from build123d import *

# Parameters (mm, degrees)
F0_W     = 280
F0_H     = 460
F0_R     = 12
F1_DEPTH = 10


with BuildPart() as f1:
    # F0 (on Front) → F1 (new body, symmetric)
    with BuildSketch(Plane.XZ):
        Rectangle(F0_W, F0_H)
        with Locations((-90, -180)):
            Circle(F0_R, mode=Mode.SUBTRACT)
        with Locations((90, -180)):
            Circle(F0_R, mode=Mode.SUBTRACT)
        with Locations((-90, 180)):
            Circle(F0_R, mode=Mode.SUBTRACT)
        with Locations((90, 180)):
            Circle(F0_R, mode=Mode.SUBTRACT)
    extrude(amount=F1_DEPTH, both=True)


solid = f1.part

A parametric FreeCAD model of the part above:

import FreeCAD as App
import Part
import Sketcher

V = App.Vector


def add_polygon(sketch, points):
    """Adds a closed chain of lines whose ends are joined by coincident constraints."""
    first, n = sketch.GeometryCount, len(points)
    for a, b in zip(points, points[1:] + points[:1]):
        sketch.addGeometry(Part.LineSegment(App.Vector(*a, 0), App.Vector(*b, 0)), False)
    for i in range(n):
        sketch.addConstraint(Sketcher.Constraint("Coincident", first + i, 2, first + (i + 1) % n, 1))

doc = App.newDocument("Part")
body = doc.addObject("PartDesign::Body", "Body")

# Sketch on XZ plane
sketch1 = doc.addObject("Sketcher::SketchObject", "Sketch")
body.addObject(sketch1)
sketch1.AttachmentSupport = (doc.XZ_Plane, [""])
sketch1.MapMode = "FlatFace"
add_polygon(sketch1, [(-140, 230), (-140, -230), (140, -230), (140, 230)])  # lines 0-3
sketch1.addGeometry(Part.Circle(V(-90, -180, 0), V(0, 0, 1), 12), False)  # 4
sketch1.addGeometry(Part.Circle(V(90, -180, 0), V(0, 0, 1), 12), False)  # 5
sketch1.addGeometry(Part.Circle(V(-90, 180, 0), V(0, 0, 1), 12), False)  # 6
sketch1.addGeometry(Part.Circle(V(90, 180, 0), V(0, 0, 1), 12), False)  # 7
sketch1.addConstraint([
    Sketcher.Constraint("Vertical", 0),
    Sketcher.Constraint("Horizontal", 1),
    Sketcher.Constraint("Vertical", 2),
    Sketcher.Constraint("Horizontal", 3),
    Sketcher.Constraint("Equal", 4, 5),
    Sketcher.Constraint("Equal", 5, 6),
    Sketcher.Constraint("Equal", 6, 7),
    Sketcher.Constraint("Symmetric", 5, 3, 6, 3, -1, 1),
    Sketcher.Constraint("Symmetric", 4, 3, 7, 3, -1, 1),
    Sketcher.Constraint("Symmetric", 0, 2, 2, 2, -1, 1),
    Sketcher.Constraint("Symmetric", 4, 3, 5, 3, -2),
    Sketcher.Constraint("Diameter", 4, 24.0),
    Sketcher.Constraint("DistanceX", 1, 1, 1, 2, 280.0),
    Sketcher.Constraint("DistanceY", 0, 2, 0, 1, 460.0),
    Sketcher.Constraint("DistanceX", 4, 3, -1, 1, 90.0),
    Sketcher.Constraint("DistanceY", 4, 3, -1, 1, 180.0),
])
pad1 = doc.addObject("PartDesign::Pad", "Pad")
body.addObject(pad1)
pad1.Profile = sketch1
pad1.Length = 20
pad1.Midplane = True

doc.recompute()
